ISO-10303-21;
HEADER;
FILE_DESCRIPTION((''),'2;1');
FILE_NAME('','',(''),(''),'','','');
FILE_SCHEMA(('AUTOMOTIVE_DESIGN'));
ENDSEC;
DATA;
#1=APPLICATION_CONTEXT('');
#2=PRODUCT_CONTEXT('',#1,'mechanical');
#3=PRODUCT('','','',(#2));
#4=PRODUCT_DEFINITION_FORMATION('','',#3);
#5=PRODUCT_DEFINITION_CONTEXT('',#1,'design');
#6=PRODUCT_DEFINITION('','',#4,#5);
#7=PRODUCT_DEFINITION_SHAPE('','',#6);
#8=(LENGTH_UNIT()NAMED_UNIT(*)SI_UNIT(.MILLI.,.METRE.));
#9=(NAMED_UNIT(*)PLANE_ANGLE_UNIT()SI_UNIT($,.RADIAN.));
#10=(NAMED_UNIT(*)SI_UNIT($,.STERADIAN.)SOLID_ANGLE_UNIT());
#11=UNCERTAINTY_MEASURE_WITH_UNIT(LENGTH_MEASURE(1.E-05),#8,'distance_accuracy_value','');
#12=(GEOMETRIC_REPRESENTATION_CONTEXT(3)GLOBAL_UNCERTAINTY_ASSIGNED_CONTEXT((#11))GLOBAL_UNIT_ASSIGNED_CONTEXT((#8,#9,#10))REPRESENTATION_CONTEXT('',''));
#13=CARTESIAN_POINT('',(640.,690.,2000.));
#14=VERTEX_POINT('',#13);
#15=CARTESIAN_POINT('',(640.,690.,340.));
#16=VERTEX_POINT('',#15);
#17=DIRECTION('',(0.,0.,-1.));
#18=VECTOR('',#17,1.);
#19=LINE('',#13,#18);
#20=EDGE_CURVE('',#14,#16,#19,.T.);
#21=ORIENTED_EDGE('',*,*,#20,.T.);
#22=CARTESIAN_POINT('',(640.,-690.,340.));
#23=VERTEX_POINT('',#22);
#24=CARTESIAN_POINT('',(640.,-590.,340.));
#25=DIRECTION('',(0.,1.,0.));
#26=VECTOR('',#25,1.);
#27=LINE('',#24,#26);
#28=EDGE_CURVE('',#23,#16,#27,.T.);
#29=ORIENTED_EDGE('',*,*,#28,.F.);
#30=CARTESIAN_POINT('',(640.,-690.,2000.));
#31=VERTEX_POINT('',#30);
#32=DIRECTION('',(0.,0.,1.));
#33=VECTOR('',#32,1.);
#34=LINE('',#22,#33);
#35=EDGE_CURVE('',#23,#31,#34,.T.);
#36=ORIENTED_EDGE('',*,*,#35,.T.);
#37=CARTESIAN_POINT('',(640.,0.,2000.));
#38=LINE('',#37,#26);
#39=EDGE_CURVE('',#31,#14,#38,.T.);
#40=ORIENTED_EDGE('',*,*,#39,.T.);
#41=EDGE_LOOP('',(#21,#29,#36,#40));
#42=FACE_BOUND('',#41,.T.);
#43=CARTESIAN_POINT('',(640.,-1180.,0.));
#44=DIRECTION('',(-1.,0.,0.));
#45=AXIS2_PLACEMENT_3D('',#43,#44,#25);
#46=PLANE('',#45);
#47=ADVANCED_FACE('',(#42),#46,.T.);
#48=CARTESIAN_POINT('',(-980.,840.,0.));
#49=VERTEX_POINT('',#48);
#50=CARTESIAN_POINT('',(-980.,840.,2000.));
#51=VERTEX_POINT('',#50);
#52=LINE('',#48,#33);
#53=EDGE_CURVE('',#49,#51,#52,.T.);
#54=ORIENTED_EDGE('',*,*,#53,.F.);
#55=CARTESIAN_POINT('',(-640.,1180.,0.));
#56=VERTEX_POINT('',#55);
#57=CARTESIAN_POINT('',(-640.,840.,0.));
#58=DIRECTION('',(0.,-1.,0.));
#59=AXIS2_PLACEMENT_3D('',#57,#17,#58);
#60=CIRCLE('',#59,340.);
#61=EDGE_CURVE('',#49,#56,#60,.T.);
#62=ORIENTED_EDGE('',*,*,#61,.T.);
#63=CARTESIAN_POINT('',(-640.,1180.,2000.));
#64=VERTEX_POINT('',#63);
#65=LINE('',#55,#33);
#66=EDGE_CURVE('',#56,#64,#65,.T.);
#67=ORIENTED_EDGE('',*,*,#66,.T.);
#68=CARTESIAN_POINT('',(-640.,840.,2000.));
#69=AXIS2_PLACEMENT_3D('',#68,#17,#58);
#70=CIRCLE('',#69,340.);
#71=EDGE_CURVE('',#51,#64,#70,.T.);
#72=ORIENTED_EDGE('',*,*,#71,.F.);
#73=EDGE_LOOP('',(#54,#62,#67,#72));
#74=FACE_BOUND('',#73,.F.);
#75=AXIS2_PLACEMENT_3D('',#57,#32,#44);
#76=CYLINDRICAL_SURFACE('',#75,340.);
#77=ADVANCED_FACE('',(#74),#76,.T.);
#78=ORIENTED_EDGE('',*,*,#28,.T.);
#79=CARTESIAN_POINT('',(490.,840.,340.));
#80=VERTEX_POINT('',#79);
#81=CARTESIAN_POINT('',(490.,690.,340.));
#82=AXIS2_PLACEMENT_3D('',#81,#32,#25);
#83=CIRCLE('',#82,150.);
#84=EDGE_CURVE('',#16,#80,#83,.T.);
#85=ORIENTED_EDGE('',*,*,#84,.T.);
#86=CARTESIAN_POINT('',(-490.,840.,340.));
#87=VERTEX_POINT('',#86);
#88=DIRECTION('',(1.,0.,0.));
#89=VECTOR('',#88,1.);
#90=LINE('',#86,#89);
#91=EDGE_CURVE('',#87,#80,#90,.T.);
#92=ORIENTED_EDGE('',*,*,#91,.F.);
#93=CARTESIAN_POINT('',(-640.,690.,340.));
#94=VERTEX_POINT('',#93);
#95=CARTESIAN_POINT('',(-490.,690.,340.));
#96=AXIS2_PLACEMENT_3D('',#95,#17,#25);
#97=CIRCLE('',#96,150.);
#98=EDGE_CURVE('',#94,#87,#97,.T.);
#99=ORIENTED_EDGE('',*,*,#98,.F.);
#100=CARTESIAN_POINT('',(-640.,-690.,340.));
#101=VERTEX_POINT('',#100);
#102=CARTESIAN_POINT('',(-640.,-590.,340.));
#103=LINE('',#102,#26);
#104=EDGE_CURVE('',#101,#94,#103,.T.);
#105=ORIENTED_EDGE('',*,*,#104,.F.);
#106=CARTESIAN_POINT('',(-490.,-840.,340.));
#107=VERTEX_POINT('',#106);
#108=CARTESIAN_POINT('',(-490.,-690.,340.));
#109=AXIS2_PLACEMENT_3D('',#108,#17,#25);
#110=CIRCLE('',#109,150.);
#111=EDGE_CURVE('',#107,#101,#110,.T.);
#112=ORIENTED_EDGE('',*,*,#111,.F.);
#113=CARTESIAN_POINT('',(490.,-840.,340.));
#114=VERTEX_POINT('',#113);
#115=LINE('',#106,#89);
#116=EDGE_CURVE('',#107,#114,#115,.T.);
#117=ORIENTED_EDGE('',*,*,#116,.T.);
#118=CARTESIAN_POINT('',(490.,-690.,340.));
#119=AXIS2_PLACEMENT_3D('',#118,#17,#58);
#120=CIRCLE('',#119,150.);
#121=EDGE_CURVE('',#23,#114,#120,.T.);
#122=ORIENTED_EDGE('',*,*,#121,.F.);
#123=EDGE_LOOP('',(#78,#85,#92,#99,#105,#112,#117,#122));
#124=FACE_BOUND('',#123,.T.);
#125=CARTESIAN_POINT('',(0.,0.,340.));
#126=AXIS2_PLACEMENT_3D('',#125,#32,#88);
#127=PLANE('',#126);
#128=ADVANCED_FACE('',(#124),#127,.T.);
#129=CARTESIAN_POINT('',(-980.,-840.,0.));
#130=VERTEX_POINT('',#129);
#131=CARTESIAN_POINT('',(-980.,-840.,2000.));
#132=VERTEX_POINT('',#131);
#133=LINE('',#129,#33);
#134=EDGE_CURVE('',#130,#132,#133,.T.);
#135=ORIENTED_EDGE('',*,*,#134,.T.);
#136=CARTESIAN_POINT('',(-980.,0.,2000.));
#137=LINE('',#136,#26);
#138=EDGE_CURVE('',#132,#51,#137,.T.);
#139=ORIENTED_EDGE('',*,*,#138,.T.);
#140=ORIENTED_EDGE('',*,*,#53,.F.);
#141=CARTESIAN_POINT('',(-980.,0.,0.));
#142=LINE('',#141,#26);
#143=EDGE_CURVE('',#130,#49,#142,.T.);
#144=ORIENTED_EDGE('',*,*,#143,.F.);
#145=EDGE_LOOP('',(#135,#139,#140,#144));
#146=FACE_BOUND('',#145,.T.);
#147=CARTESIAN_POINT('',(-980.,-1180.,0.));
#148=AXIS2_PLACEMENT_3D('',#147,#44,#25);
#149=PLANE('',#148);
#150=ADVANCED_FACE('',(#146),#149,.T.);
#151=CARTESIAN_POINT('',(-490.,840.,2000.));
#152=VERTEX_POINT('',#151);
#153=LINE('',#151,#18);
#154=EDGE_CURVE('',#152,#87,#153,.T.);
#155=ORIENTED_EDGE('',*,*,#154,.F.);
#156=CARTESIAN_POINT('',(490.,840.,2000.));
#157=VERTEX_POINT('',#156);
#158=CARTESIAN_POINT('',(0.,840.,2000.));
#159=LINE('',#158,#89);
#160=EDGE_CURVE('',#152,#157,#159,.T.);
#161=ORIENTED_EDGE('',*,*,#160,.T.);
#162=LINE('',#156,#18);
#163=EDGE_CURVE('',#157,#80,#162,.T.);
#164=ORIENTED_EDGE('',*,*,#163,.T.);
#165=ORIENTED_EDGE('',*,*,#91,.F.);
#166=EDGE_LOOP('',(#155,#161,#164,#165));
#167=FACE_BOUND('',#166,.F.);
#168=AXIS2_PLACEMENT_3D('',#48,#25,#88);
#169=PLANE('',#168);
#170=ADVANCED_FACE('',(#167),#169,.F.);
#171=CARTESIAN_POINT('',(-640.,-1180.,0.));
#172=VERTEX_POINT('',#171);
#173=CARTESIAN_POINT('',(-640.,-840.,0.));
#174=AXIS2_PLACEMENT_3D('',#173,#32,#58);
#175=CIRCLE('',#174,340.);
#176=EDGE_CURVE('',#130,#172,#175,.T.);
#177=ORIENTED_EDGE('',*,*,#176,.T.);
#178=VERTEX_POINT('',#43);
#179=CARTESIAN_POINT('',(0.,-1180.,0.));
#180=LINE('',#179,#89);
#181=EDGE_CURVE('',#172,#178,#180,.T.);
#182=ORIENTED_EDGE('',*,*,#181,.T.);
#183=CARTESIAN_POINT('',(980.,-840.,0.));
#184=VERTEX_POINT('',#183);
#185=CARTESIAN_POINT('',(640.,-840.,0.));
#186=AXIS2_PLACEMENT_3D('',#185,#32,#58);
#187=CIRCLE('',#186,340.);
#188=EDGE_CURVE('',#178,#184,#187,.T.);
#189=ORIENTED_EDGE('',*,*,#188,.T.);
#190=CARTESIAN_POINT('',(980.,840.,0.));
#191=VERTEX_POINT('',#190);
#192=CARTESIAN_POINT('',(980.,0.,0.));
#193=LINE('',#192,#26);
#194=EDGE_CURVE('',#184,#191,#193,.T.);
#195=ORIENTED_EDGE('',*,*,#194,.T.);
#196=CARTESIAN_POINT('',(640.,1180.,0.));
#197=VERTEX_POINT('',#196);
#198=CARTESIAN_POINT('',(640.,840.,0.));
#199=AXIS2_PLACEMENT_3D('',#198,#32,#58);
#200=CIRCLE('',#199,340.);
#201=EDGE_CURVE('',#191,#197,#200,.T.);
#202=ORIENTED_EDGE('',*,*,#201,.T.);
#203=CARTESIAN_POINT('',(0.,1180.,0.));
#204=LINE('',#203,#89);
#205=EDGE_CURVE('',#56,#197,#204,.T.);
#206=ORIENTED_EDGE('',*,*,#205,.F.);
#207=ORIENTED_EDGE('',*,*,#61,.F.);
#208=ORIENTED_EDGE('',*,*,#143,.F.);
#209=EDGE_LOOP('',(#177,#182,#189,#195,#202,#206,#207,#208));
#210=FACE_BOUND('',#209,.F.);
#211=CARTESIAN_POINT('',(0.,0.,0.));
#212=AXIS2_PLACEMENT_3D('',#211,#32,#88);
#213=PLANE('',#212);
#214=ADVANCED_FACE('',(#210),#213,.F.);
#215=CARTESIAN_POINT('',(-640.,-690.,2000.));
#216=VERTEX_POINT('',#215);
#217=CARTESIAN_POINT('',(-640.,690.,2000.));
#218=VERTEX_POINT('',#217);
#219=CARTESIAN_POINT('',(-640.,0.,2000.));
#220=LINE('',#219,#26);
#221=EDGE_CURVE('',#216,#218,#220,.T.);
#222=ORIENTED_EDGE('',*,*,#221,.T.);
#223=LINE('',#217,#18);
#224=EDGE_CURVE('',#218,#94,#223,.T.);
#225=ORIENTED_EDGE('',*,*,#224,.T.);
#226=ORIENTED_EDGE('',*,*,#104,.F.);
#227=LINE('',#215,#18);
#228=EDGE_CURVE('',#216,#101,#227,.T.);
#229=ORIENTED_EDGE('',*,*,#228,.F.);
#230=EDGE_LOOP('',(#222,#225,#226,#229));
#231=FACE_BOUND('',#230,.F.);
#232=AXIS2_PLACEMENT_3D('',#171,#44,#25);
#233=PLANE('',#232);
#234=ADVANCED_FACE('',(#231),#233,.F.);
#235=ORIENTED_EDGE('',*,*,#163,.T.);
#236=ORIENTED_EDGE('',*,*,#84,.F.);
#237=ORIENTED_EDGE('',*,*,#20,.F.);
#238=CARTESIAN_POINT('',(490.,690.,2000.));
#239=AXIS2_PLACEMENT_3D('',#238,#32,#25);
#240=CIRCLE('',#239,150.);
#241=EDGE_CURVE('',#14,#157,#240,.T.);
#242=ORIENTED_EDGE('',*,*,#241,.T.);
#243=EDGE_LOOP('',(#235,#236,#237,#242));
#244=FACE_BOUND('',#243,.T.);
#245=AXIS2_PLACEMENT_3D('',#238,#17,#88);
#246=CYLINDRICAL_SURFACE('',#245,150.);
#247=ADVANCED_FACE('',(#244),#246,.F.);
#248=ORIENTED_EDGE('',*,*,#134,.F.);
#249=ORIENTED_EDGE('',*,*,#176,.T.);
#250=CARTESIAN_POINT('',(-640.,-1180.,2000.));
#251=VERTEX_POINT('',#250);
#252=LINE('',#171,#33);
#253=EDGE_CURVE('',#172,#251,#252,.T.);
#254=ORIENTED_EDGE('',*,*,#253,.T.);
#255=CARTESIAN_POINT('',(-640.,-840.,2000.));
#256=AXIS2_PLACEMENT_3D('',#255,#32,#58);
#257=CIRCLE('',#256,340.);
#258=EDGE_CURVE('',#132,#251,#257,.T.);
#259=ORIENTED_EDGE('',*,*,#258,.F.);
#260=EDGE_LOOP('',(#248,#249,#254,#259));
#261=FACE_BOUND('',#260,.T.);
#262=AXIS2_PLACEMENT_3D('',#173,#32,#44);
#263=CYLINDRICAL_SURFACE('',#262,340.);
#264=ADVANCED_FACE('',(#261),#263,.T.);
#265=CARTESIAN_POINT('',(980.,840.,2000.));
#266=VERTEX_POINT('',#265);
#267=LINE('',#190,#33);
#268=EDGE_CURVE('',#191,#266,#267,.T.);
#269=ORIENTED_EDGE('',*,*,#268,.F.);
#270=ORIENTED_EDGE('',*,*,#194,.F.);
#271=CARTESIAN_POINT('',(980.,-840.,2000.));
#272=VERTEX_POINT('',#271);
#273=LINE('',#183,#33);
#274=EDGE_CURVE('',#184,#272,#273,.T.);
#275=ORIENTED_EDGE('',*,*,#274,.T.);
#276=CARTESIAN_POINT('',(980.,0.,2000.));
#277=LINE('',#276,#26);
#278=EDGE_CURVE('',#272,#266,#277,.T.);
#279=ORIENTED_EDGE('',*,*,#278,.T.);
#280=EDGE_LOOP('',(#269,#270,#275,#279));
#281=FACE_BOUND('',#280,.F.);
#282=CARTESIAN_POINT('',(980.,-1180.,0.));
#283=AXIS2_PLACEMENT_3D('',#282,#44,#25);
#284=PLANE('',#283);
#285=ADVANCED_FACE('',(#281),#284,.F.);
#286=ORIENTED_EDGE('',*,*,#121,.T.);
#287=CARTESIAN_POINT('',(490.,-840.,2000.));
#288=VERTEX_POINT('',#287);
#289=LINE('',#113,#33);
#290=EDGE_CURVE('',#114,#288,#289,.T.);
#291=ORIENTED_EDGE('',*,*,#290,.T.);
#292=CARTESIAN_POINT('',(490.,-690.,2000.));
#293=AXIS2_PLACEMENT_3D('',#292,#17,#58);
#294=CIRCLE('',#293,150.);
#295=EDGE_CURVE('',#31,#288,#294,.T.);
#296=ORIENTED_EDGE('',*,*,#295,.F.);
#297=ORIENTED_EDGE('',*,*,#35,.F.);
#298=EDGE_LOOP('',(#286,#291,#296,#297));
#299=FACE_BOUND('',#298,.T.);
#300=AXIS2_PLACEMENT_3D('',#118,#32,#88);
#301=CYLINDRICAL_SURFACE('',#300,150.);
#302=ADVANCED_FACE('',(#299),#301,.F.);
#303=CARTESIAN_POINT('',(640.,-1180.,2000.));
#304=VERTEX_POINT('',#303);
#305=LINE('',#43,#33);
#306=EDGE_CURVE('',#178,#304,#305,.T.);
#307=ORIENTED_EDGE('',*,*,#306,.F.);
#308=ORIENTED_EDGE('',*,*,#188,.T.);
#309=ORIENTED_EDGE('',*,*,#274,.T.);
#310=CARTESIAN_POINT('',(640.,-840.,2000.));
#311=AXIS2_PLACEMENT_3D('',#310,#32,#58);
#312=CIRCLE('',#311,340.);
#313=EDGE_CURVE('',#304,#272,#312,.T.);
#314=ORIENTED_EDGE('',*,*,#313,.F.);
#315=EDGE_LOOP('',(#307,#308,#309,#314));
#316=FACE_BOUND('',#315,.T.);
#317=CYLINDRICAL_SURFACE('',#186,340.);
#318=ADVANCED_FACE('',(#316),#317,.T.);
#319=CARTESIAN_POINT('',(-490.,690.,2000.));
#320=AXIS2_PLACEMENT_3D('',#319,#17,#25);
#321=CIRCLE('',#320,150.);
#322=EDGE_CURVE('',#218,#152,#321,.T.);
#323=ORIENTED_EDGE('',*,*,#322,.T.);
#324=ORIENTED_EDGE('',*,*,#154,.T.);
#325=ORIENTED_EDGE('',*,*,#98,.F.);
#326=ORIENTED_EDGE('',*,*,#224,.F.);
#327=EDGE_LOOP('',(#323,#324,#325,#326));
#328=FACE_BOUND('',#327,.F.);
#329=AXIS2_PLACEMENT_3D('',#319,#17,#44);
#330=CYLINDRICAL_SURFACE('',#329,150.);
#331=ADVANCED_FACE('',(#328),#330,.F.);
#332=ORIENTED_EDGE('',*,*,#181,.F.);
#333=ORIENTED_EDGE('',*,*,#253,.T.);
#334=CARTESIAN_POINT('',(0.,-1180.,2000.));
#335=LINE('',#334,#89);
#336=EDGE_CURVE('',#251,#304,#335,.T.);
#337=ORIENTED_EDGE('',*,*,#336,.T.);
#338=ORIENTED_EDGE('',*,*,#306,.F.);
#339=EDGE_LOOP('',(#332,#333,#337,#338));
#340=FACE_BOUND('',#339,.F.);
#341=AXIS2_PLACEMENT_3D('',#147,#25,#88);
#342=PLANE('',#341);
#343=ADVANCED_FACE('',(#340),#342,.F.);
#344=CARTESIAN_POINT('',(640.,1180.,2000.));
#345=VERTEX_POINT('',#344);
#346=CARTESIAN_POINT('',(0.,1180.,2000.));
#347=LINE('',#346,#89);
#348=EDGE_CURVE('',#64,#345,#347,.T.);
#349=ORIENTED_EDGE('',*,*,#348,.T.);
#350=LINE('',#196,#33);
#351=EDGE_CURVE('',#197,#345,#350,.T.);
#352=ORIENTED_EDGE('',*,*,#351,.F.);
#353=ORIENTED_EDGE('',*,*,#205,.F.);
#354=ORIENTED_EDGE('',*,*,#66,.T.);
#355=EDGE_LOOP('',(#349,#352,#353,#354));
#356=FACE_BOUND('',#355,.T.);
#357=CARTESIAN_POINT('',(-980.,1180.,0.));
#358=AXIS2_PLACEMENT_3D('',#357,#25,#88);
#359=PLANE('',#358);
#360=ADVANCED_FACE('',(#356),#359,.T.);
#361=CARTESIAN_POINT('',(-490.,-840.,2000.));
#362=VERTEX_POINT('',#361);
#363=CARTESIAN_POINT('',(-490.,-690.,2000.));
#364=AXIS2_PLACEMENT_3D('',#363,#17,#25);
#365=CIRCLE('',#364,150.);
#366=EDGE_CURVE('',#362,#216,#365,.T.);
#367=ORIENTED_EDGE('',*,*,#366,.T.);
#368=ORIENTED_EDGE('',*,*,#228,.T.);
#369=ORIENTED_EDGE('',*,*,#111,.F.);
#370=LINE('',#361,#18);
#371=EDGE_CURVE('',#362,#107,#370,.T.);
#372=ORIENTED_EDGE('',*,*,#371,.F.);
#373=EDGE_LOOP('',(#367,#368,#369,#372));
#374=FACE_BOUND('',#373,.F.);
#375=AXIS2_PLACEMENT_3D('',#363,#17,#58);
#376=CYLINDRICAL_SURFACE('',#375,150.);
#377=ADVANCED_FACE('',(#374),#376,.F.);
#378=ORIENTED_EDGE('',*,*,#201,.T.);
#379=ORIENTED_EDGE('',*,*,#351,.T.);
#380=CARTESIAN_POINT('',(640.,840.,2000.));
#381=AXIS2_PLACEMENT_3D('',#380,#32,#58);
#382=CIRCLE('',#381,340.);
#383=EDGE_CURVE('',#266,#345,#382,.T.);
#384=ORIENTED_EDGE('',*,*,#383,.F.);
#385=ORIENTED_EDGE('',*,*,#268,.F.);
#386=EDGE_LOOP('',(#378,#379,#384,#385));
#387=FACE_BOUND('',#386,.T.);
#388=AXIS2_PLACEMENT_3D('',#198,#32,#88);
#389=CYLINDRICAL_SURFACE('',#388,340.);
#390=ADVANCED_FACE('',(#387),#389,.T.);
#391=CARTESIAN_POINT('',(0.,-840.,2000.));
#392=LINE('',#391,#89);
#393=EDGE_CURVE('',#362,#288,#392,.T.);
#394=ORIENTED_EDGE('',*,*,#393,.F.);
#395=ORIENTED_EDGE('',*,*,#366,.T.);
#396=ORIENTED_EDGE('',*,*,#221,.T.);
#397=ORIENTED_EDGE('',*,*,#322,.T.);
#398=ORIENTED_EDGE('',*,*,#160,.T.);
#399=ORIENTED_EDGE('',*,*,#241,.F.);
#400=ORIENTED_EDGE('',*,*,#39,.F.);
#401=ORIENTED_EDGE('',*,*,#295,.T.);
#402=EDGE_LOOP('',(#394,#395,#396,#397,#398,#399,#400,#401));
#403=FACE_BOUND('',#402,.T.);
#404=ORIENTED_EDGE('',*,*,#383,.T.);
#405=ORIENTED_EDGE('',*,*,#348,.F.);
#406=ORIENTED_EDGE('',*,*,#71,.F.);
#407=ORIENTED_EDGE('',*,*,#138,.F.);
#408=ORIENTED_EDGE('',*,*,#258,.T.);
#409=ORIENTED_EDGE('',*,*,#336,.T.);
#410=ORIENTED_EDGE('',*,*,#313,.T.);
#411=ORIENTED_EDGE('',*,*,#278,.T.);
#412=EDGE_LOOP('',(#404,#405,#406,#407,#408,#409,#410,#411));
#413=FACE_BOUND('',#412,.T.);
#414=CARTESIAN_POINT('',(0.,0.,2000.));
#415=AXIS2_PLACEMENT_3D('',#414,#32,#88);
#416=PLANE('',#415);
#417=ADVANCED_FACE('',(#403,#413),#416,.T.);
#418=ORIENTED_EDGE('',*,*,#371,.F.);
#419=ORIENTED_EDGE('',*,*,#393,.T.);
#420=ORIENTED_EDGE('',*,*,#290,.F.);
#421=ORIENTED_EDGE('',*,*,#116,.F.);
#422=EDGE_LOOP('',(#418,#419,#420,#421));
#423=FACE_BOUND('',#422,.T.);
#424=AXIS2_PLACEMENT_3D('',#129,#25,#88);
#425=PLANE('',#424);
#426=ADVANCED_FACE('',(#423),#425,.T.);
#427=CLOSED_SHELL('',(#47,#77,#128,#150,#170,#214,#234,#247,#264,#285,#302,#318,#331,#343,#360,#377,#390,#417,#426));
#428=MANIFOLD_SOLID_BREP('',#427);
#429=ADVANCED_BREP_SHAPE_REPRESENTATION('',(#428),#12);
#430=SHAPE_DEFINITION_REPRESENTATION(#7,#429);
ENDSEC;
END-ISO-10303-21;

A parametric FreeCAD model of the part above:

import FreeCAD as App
import Part
import Sketcher


def edges_at(feature, points):
    """Names of the edges that pass closest to the given points."""
    edges = feature.Shape.Edges
    near = lambda p: min(range(len(edges)), key=lambda i: edges[i].distToShape(Part.Vertex(*p))[0])
    return sorted({f"Edge{near(p) + 1}" for p in points})


def faces_at(feature, points):
    """Names of the faces that lie closest to the given points."""
    faces = feature.Shape.Faces
    near = lambda p: min(range(len(faces)), key=lambda i: faces[i].distToShape(Part.Vertex(*p))[0])
    return sorted({f"Face{near(p) + 1}" for p in points})

doc = App.newDocument("Part")
body = doc.addObject("PartDesign::Body", "Body")

sketch1 = doc.addObject("Sketcher::SketchObject", "Sketch")
body.addObject(sketch1)
sketch1.AttachmentSupport = (doc.XY_Plane, [""])
sketch1.MapMode = "FlatFace"
sketch1.addGeometry(Part.LineSegment(App.Vector(-980, 1180, 0), App.Vector(-980, -1180, 0)), False)
sketch1.addGeometry(Part.LineSegment(App.Vector(-980, -1180, 0), App.Vector(980, -1180, 0)), False)
sketch1.addGeometry(Part.LineSegment(App.Vector(980, -1180, 0), App.Vector(980, 1180, 0)), False)
sketch1.addGeometry(Part.LineSegment(App.Vector(980, 1180, 0), App.Vector(-980, 1180, 0)), False)
sketch1.addConstraint(Sketcher.Constraint("Coincident", 0, 2, 1, 1))
sketch1.addConstraint(Sketcher.Constraint("Coincident", 1, 2, 2, 1))
sketch1.addConstraint(Sketcher.Constraint("Coincident", 2, 2, 3, 1))
sketch1.addConstraint(Sketcher.Constraint("Coincident", 3, 2, 0, 1))
sketch1.addConstraint(Sketcher.Constraint("Vertical", 0))
sketch1.addConstraint(Sketcher.Constraint("Horizontal", 1))
sketch1.addConstraint(Sketcher.Constraint("Vertical", 2))
sketch1.addConstraint(Sketcher.Constraint("Horizontal", 3))
sketch1.addConstraint(Sketcher.Constraint("Symmetric", 0, 2, 2, 2, -1, 1))
sketch1.addConstraint(Sketcher.Constraint("DistanceX", 1, 1, 1, 2, 1960.0))
sketch1.addConstraint(Sketcher.Constraint("DistanceY", 0, 2, 0, 1, 2360.0))
pad1 = doc.addObject("PartDesign::Pad", "Pad")
body.addObject(pad1)
pad1.Profile = sketch1
pad1.Length = 2000
doc.recompute()

thickness = doc.addObject("PartDesign::Thickness", "Thickness")
body.addObject(thickness)
thickness.Base = (pad1, faces_at(pad1, [(0, 0, 2000)]))
thickness.Value = 340
thickness.Reversed = True
thickness.Join = "Arc"
doc.recompute()

fillet = doc.addObject("PartDesign::Fillet", "Fillet")
body.addObject(fillet)
fillet.Base = (thickness, edges_at(thickness, [
    (-980, 1180, 1000),
    (980, 1180, 1000),
    (-980, -1180, 1000),
    (980, -1180, 1000),
]))
fillet.Radius = 340
doc.recompute()

fillet2 = doc.addObject("PartDesign::Fillet", "Fillet001")
body.addObject(fillet2)
fillet2.Base = (fillet, edges_at(fillet, [
    (640, 840, 1170),
    (640, -840, 1170),
    (-640, -840, 1170),
    (-640, 840, 1170),
]))
fillet2.Radius = 150

doc.recompute()
